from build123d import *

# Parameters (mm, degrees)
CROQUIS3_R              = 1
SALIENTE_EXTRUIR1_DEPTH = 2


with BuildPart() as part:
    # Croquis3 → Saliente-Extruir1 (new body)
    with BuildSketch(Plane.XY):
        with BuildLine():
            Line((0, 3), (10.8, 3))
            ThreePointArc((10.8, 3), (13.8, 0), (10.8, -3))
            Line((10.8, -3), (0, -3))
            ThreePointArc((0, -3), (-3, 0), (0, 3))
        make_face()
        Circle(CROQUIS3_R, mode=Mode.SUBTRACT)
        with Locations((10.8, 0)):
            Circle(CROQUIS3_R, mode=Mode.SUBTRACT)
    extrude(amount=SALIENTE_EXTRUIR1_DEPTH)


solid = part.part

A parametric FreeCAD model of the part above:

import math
import FreeCAD as App
import Part
import Sketcher

V = App.Vector
Q = App.Units.Quantity

doc = App.newDocument("Part")
body = doc.addObject("PartDesign::Body", "Body")

sketch1 = body.newObject("Sketcher::SketchObject", "Sketch")
sketch1.AttachmentSupport = (doc.getObject("XY_Plane"), [""])
sketch1.MapMode = "FlatFace"
sketch1.addGeometry([
    Part.LineSegment(V(10.8, 3, 0), V(0, 3, 0)),
    Part.ArcOfCircle(Part.Circle(V(0, 0, 0), V(0, 0, 1), 3), math.radians(90), math.radians(270)),
    Part.LineSegment(V(0, -3, 0), V(10.8, -3, 0)),
    Part.ArcOfCircle(Part.Circle(V(10.8, 0, 0), V(0, 0, 1), 3), math.radians(-90), math.radians(90)),
    Part.Circle(V(10.8, 0, 0), V(0, 0, 1), 1),
    Part.Circle(V(0, 0, 0), V(0, 0, 1), 1),
], False)
sketch1.addConstraint([
    Sketcher.Constraint("Tangent", 0, 2, 1, 1),
    Sketcher.Constraint("Tangent", 1, 2, 2, 1),
    Sketcher.Constraint("Tangent", 2, 2, 3, 1),
    Sketcher.Constraint("Tangent", 3, 2, 0, 1),
    Sketcher.Constraint("Horizontal", 0),
    Sketcher.Constraint("Horizontal", 2),
    Sketcher.Constraint("Coincident", 1, 3, -1, 1),
    Sketcher.Constraint("Coincident", 5, 3, -1, 1),
    Sketcher.Constraint("Coincident", 4, 3, 3, 3),
    Sketcher.Constraint("Equal", 4, 5),
    Sketcher.Constraint("Diameter", 4, Q("2 mm")),
    Sketcher.Constraint("Radius", 1, Q("3 mm")),
    Sketcher.Constraint("DistanceX", 0, 2, 0, 1, Q("10.8 mm")),
])
pad1 = body.newObject("PartDesign::Pad", "Pad")
pad1.Profile = sketch1
pad1.Length = 2

doc.recompute()
